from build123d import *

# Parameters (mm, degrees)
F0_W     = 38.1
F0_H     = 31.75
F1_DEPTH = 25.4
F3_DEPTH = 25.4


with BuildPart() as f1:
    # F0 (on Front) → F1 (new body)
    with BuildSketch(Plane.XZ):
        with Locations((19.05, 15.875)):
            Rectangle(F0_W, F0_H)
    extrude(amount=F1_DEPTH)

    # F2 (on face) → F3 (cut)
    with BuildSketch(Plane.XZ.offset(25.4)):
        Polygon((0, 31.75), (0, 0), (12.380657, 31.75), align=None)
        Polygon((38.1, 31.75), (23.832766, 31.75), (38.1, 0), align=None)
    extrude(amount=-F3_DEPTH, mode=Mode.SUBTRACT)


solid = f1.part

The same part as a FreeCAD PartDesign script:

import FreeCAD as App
import Part
import Sketcher
from FreeCAD import Vector
Q = App.Units.Quantity


def add_polygon(sketch, points):
    """Adds a closed chain of lines whose ends are joined by coincident constraints."""
    first, n = sketch.GeometryCount, len(points)
    for a, b in zip(points, points[1:] + points[:1]):
        sketch.addGeometry(Part.LineSegment(App.Vector(*a, 0), App.Vector(*b, 0)), False)
    for i in range(n):
        sketch.addConstraint(Sketcher.Constraint("Coincident", first + i, 2, first + (i + 1) % n, 1))

doc = App.newDocument("Part")
body = doc.addObject("PartDesign::Body", "Body")

sketch1 = body.newObject("Sketcher::SketchObject", "Sketch")
sketch1.AttachmentSupport = (doc.getObject("XZ_Plane"), [""])
sketch1.MapMode = "FlatFace"
add_polygon(sketch1, [(0, 32), (0, 0), (38, 0), (38, 32)])
sketch1.addConstraint([
    Sketcher.Constraint("Vertical", 0),
    Sketcher.Constraint("Horizontal", 1),
    Sketcher.Constraint("Vertical", 2),
    Sketcher.Constraint("Horizontal", 3),
    Sketcher.Constraint("Coincident", 0, 2, -1, 1),
    Sketcher.Constraint("DistanceX", 1, 1, 1, 2, Q("1.5 in")),
    Sketcher.Constraint("DistanceY", 0, 2, 0, 1, Q("1.25 in")),
])
pad1 = body.newObject("PartDesign::Pad", "Pad")
pad1.Profile = sketch1
pad1.Length = Q("1 in")

sketch2 = body.newObject("Sketcher::SketchObject", "Sketch001")
sketch2.AttachmentSupport = (doc.getObject("XZ_Plane"), [""])
sketch2.MapMode = "FlatFace"
sketch2.AttachmentOffset = App.Placement(Vector(0, 0, 1 * 25.4), App.Rotation())
add_polygon(sketch2, [(0, 32), (0, 0), (12, 32)])
add_polygon(sketch2, [(38, 32), (24, 32), (38, 0)])
sketch2.addConstraint([
    Sketcher.Constraint("Vertical", 0),
    Sketcher.Constraint("Horizontal", 2),
    Sketcher.Constraint("Horizontal", 3),
    Sketcher.Constraint("Vertical", 5),
    Sketcher.Constraint("Coincident", 0, 2, -1, 1),
    Sketcher.Constraint("PointOnObject", 4, 2, -1),
    Sketcher.Constraint("Horizontal", 2, 2, 3, 2),
    Sketcher.Constraint("DistanceY", 0, 2, 0, 1, Q("1.25 in")),
    Sketcher.Constraint("DistanceX", -1, 1, 4, 2, Q("1.5 in")),
    Sketcher.Constraint("Distance", 4, 34.808282),
    Sketcher.Constraint("DistanceX", 2, 2, 2, 1, 12.380657),
])
pocket1 = body.newObject("PartDesign::Pocket", "Pocket")
pocket1.Profile = sketch2
pocket1.Length = Q("1 in")

doc.recompute()
